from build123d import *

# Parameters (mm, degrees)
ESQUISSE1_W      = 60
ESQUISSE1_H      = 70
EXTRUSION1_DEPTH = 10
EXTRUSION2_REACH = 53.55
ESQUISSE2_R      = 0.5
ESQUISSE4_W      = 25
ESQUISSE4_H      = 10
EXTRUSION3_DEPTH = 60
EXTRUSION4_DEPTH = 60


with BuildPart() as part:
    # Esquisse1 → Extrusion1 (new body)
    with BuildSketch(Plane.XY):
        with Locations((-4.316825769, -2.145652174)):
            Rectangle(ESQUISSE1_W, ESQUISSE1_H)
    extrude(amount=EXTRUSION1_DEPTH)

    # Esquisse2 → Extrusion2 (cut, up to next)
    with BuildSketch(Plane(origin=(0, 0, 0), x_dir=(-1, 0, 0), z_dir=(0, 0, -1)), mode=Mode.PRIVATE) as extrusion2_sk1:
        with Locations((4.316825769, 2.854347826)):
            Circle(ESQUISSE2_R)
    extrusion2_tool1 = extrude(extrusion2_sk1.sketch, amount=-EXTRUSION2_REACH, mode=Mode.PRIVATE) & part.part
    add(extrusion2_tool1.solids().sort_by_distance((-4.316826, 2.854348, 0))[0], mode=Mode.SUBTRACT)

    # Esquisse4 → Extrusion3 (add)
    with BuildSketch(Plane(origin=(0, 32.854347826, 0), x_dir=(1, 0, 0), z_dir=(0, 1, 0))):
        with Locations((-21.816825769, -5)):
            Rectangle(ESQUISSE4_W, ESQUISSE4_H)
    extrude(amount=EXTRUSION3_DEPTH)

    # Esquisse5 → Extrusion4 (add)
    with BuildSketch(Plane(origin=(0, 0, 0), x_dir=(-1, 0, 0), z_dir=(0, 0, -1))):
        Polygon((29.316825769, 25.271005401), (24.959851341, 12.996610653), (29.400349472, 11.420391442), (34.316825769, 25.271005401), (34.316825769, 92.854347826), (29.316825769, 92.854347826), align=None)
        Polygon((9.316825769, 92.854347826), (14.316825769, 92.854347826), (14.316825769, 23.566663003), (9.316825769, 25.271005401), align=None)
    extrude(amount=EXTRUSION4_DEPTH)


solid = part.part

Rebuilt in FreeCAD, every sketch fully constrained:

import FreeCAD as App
import Part
import Sketcher
from FreeCAD import Vector


def add_polygon(sketch, points):
    """Adds a closed chain of lines whose ends are joined by coincident constraints."""
    first, n = sketch.GeometryCount, len(points)
    for a, b in zip(points, points[1:] + points[:1]):
        sketch.addGeometry(Part.LineSegment(App.Vector(*a, 0), App.Vector(*b, 0)), False)
    for i in range(n):
        sketch.addConstraint(Sketcher.Constraint("Coincident", first + i, 2, first + (i + 1) % n, 1))

doc = App.newDocument("Part")
body = doc.addObject("PartDesign::Body", "Body")

# Sketch on XY plane
sketch1 = doc.addObject("Sketcher::SketchObject", "Sketch")
body.addObject(sketch1)
sketch1.AttachmentSupport = (doc.XY_Plane, [""])
sketch1.MapMode = "FlatFace"
add_polygon(sketch1, [(-34, 33), (-34, -37), (26, -37), (26, 33)])  # lines 0-3
sketch1.addConstraint([
    Sketcher.Constraint("Vertical", 0),
    Sketcher.Constraint("Horizontal", 1),
    Sketcher.Constraint("Vertical", 2),
    Sketcher.Constraint("Horizontal", 3),
    Sketcher.Constraint("DistanceX", 1, 1, 1, 2, 60.0),
    Sketcher.Constraint("DistanceY", 0, 2, 0, 1, 70.0),
    Sketcher.Constraint("DistanceX", 0, 2, -1, 1, 34.316826),
    Sketcher.Constraint("DistanceY", 0, 2, -1, 1, 37.145652),
])
pad1 = doc.addObject("PartDesign::Pad", "Pad")
body.addObject(pad1)
pad1.Profile = sketch1
pad1.Length = 10

# Sketch on XY plane
sketch2 = doc.addObject("Sketcher::SketchObject", "Sketch001")
body.addObject(sketch2)
sketch2.AttachmentSupport = (doc.XY_Plane, [""])
sketch2.MapMode = "FlatFace"
sketch2.addGeometry(Part.Circle(Vector(-4.3, 2.9, 0), Vector(0, 0, 1), 0.5), False)
sketch2.addConstraint([
    Sketcher.Constraint("Diameter", 0, 1.0),
    Sketcher.Constraint("DistanceX", 0, 3, -1, 1, 4.316826),
    Sketcher.Constraint("DistanceY", -1, 1, 0, 3, 2.854348),
])
pocket1 = doc.addObject("PartDesign::Pocket", "Pocket")
body.addObject(pocket1)
pocket1.Profile = sketch2
pocket1.Type = "UpToFirst"
pocket1.Reversed = True

# Sketch on XZ plane
sketch3 = doc.addObject("Sketcher::SketchObject", "Sketch002")
body.addObject(sketch3)
sketch3.AttachmentSupport = (doc.XZ_Plane, [""])
sketch3.MapMode = "FlatFace"
sketch3.AttachmentOffset = App.Placement(Vector(0, 0, -32.854348), App.Rotation())
add_polygon(sketch3, [(-34, 0), (-34, 10), (-9, 10), (-9, 0)])  # lines 0-3
sketch3.addConstraint([
    Sketcher.Constraint("Vertical", 0),
    Sketcher.Constraint("Horizontal", 1),
    Sketcher.Constraint("Vertical", 2),
    Sketcher.Constraint("Horizontal", 3),
    Sketcher.Constraint("PointOnObject", 2, 2, -1),
    Sketcher.Constraint("DistanceX", 1, 1, 1, 2, 25.0),
    Sketcher.Constraint("DistanceY", 0, 1, 0, 2, 10.0),
    Sketcher.Constraint("DistanceX", 0, 2, -1, 1, 34.316826),
])
pad2 = doc.addObject("PartDesign::Pad", "Pad001")
body.addObject(pad2)
pad2.Profile = sketch3
pad2.Length = 60
pad2.Reversed = True

# Sketch on XY plane
sketch4 = doc.addObject("Sketcher::SketchObject", "Sketch003")
body.addObject(sketch4)
sketch4.AttachmentSupport = (doc.XY_Plane, [""])
sketch4.MapMode = "FlatFace"
add_polygon(sketch4, [(-29.3, 25.3), (-25, 13), (-29.4, 11.4), (-34.3, 25.3), (-34.3, 92.9), (-29.3, 92.9)])  # lines 0-5
add_polygon(sketch4, [(-14.3, 92.9), (-9.3, 92.9), (-9.3, 25.3), (-14.3, 23.6)])  # lines 6-9
sketch4.addConstraint([
    Sketcher.Constraint("Vertical", 3),
    Sketcher.Constraint("Horizontal", 4),
    Sketcher.Constraint("Vertical", 5),
    Sketcher.Constraint("Horizontal", 6),
    Sketcher.Constraint("Vertical", 7),
    Sketcher.Constraint("Vertical", 9),
    Sketcher.Constraint("Perpendicular", 0, 1),
    Sketcher.Constraint("Perpendicular", 1, 2),
    Sketcher.Constraint("Horizontal", 2, 2, 5, 2),
    Sketcher.Constraint("Horizontal", 4, 2, 6, 2),
    Sketcher.Constraint("Horizontal", 5, 2, 7, 2),
    Sketcher.Constraint("Equal", 4, 6),
    Sketcher.Constraint("DistanceX", 4, 1, 4, 2, 5.0),
    Sketcher.Constraint("DistanceX", 4, 2, 6, 2, 20.0),
    Sketcher.Constraint("DistanceX", 1, 2, 0, 2, 4.440498),
    Sketcher.Constraint("Distance", 2, 14.697321),
    Sketcher.Constraint("DistanceY", 3, 1, 3, 2, 67.583342),
    Sketcher.Constraint("DistanceY", 9, 1, 9, 2, 69.287685),
    Sketcher.Constraint("DistanceX", 0, 2, -1, 1, 24.959851),
    Sketcher.Constraint("DistanceY", -1, 1, 0, 2, 12.996611),
])
pad3 = doc.addObject("PartDesign::Pad", "Pad002")
body.addObject(pad3)
pad3.Profile = sketch4
pad3.Length = 60
pad3.Reversed = True

doc.recompute()
